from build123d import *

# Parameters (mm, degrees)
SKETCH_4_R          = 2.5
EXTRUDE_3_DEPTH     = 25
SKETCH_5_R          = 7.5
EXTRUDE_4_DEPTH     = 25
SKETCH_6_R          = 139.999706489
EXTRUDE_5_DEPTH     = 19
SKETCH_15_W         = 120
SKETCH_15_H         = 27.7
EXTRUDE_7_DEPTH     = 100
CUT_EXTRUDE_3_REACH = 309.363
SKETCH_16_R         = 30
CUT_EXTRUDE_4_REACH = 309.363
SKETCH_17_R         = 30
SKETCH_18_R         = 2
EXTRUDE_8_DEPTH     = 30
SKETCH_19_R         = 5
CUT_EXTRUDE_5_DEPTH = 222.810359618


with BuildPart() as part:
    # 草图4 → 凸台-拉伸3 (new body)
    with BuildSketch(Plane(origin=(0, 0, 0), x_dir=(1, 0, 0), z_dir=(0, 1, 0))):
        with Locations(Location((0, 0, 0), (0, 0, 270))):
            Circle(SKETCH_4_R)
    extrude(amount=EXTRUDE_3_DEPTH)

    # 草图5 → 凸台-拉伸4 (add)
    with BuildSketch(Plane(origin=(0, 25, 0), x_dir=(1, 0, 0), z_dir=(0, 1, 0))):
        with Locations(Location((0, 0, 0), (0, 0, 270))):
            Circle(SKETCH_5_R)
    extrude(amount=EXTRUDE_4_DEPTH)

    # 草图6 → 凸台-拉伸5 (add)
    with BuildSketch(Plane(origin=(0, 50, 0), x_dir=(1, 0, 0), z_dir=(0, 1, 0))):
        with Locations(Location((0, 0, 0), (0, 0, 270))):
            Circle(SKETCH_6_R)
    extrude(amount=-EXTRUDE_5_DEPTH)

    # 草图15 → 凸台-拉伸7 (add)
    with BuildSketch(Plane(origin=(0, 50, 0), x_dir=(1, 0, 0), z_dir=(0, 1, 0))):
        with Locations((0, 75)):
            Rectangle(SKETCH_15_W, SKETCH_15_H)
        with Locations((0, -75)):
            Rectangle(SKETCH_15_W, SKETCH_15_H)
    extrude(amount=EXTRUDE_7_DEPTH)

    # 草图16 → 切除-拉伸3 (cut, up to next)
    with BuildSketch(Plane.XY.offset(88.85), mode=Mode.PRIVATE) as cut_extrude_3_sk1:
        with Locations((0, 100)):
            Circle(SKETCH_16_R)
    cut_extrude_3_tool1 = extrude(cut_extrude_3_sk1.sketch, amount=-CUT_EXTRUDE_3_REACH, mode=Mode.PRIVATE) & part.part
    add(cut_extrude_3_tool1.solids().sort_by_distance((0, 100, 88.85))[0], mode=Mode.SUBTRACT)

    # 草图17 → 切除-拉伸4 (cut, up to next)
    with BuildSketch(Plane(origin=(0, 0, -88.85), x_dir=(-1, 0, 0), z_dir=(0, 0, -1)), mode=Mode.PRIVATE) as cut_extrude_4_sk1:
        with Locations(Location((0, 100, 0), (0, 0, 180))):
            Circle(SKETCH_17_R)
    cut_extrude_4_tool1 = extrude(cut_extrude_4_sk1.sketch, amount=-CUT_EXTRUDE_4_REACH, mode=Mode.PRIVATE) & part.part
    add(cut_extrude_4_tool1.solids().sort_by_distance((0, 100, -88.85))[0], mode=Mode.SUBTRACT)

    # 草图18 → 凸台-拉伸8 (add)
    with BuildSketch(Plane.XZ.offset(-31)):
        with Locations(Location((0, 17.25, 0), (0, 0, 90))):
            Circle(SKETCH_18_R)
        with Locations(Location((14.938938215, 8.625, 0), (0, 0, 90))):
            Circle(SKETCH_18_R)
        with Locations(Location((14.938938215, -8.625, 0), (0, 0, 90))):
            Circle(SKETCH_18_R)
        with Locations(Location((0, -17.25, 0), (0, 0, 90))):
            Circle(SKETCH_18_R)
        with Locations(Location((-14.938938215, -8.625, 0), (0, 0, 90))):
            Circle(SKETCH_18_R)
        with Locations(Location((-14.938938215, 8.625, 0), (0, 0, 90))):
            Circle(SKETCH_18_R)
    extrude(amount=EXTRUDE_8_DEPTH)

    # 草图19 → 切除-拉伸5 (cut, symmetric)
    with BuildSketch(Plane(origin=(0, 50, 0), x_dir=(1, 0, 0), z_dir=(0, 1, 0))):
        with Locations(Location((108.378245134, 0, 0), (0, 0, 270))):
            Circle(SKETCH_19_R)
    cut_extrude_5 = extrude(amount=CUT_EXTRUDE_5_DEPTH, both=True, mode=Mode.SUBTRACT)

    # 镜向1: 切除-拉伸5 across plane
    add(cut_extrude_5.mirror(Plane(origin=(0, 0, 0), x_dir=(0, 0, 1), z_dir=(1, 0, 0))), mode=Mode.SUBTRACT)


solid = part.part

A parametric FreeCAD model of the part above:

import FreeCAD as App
import Part
import Sketcher

V = App.Vector


def add_polygon(sketch, points):
    """Adds a closed chain of lines whose ends are joined by coincident constraints."""
    first, n = sketch.GeometryCount, len(points)
    for a, b in zip(points, points[1:] + points[:1]):
        sketch.addGeometry(Part.LineSegment(App.Vector(*a, 0), App.Vector(*b, 0)), False)
    for i in range(n):
        sketch.addConstraint(Sketcher.Constraint("Coincident", first + i, 2, first + (i + 1) % n, 1))

doc = App.newDocument("Part")
body = doc.addObject("PartDesign::Body", "Body")

sketch1 = body.newObject("Sketcher::SketchObject", "Sketch")
sketch1.AttachmentSupport = (doc.getObject("XZ_Plane"), [""])
sketch1.MapMode = "FlatFace"
sketch1.addGeometry(Part.Circle(V(0, 0, 0), V(0, 0, 1), 2.5), False)
sketch1.addConstraint([
    Sketcher.Constraint("Coincident", 0, 3, -1, 1),
    Sketcher.Constraint("Diameter", 0, 5.0),
])
pad1 = body.newObject("PartDesign::Pad", "Pad")
pad1.Profile = sketch1
pad1.Length = 25
pad1.Reversed = True

sketch2 = body.newObject("Sketcher::SketchObject", "Sketch001")
sketch2.AttachmentSupport = (doc.getObject("XZ_Plane"), [""])
sketch2.MapMode = "FlatFace"
sketch2.AttachmentOffset = App.Placement(V(0, 0, -25), App.Rotation())
sketch2.addGeometry(Part.Circle(V(0, 0, 0), V(0, 0, 1), 8), False)
sketch2.addConstraint([
    Sketcher.Constraint("Coincident", 0, 3, -1, 1),
    Sketcher.Constraint("Diameter", 0, 15.0),
])
pad2 = body.newObject("PartDesign::Pad", "Pad001")
pad2.Profile = sketch2
pad2.Length = 25
pad2.Reversed = True

sketch3 = body.newObject("Sketcher::SketchObject", "Sketch002")
sketch3.AttachmentSupport = (doc.getObject("XZ_Plane"), [""])
sketch3.MapMode = "FlatFace"
sketch3.AttachmentOffset = App.Placement(V(0, 0, -50), App.Rotation())
sketch3.addGeometry(Part.Circle(V(0, 0, 0), V(0, 0, 1), 139.999706), False)
sketch3.addConstraint([
    Sketcher.Constraint("Coincident", 0, 3, -1, 1),
    Sketcher.Constraint("Diameter", 0, 279.999413),
])
pad3 = body.newObject("PartDesign::Pad", "Pad002")
pad3.Profile = sketch3
pad3.Length = 19

sketch4 = body.newObject("Sketcher::SketchObject", "Sketch003")
sketch4.AttachmentSupport = (doc.getObject("XZ_Plane"), [""])
sketch4.MapMode = "FlatFace"
sketch4.AttachmentOffset = App.Placement(V(0, 0, -50), App.Rotation())
add_polygon(sketch4, [(-60, -89), (-60, -61), (60, -61), (60, -89)])
add_polygon(sketch4, [(-60, 61), (-60, 89), (60, 89), (60, 61)])
sketch4.addConstraint([
    Sketcher.Constraint("Vertical", 0),
    Sketcher.Constraint("Horizontal", 1),
    Sketcher.Constraint("Vertical", 2),
    Sketcher.Constraint("Horizontal", 3),
    Sketcher.Constraint("Vertical", 4),
    Sketcher.Constraint("Horizontal", 5),
    Sketcher.Constraint("Vertical", 6),
    Sketcher.Constraint("Horizontal", 7),
    Sketcher.Constraint("Symmetric", 2, 2, 4, 2, -1, 1),
    Sketcher.Constraint("Symmetric", 0, 2, 6, 2, -1, 1),
    Sketcher.Constraint("Vertical", 3, 2, 4, 2),
    Sketcher.Constraint("DistanceX", 1, 1, 1, 2, 120.0),
    Sketcher.Constraint("DistanceY", 0, 1, 0, 2, 27.7),
    Sketcher.Constraint("DistanceY", 0, 2, 4, 2, 150.0),
])
pad4 = body.newObject("PartDesign::Pad", "Pad003")
pad4.Profile = sketch4
pad4.Length = 100
pad4.Reversed = True

sketch5 = body.newObject("Sketcher::SketchObject", "Sketch004")
sketch5.AttachmentSupport = (doc.getObject("XY_Plane"), [""])
sketch5.MapMode = "FlatFace"
sketch5.AttachmentOffset = App.Placement(V(0, 0, 88.85), App.Rotation())
sketch5.addGeometry(Part.Circle(V(0, 100, 0), V(0, 0, 1), 30), False)
sketch5.addConstraint([
    Sketcher.Constraint("PointOnObject", 0, 3, -2),
    Sketcher.Constraint("Diameter", 0, 60.0),
    Sketcher.Constraint("DistanceY", -1, 1, 0, 3, 100.0),
])
pocket1 = body.newObject("PartDesign::Pocket", "Pocket")
pocket1.Profile = sketch5
pocket1.Type = "UpToFirst"

sketch6 = body.newObject("Sketcher::SketchObject", "Sketch005")
sketch6.AttachmentSupport = (doc.getObject("XY_Plane"), [""])
sketch6.MapMode = "FlatFace"
sketch6.AttachmentOffset = App.Placement(V(0, 0, -88.85), App.Rotation())
sketch6.addGeometry(Part.Circle(V(0, 100, 0), V(0, 0, 1), 30), False)
sketch6.addConstraint([
    Sketcher.Constraint("PointOnObject", 0, 3, -2),
    Sketcher.Constraint("Diameter", 0, 60.0),
    Sketcher.Constraint("DistanceY", -1, 1, 0, 3, 100.0),
])
pocket2 = body.newObject("PartDesign::Pocket", "Pocket001")
pocket2.Profile = sketch6
pocket2.Type = "UpToFirst"
pocket2.Reversed = True

sketch7 = body.newObject("Sketcher::SketchObject", "Sketch006")
sketch7.AttachmentSupport = (doc.getObject("XZ_Plane"), [""])
sketch7.MapMode = "FlatFace"
sketch7.AttachmentOffset = App.Placement(V(0, 0, -31), App.Rotation())
sketch7.addGeometry([
    Part.Circle(V(0, 17.2, 0), V(0, 0, 1), 2),
    Part.Circle(V(14.9, 8.6, 0), V(0, 0, 1), 2),
    Part.Circle(V(14.9, -8.6, 0), V(0, 0, 1), 2),
    Part.Circle(V(0, -17.2, 0), V(0, 0, 1), 2),
    Part.Circle(V(-14.9, -8.6, 0), V(0, 0, 1), 2),
    Part.Circle(V(-14.9, 8.6, 0), V(0, 0, 1), 2),
], False)
sketch7.addConstraint([
    Sketcher.Constraint("Equal", 0, 1),
    Sketcher.Constraint("Equal", 1, 2),
    Sketcher.Constraint("Equal", 2, 3),
    Sketcher.Constraint("Equal", 3, 4),
    Sketcher.Constraint("Equal", 4, 5),
    Sketcher.Constraint("Symmetric", 0, 3, 3, 3, -1, 1),
    Sketcher.Constraint("Symmetric", 1, 3, 4, 3, -1, 1),
    Sketcher.Constraint("Symmetric", 2, 3, 5, 3, -1, 1),
    Sketcher.Constraint("Symmetric", 2, 3, 4, 3, -2),
    Sketcher.Constraint("PointOnObject", 0, 3, -2),
    Sketcher.Constraint("Diameter", 0, 4.0),
    Sketcher.Constraint("DistanceY", 3, 3, 0, 3, 34.5),
    Sketcher.Constraint("DistanceY", 2, 3, 1, 3, 17.25),
    Sketcher.Constraint("DistanceX", -1, 1, 1, 3, 14.938938),
])
pad5 = body.newObject("PartDesign::Pad", "Pad004")
pad5.Profile = sketch7
pad5.Length = 30

sketch8 = body.newObject("Sketcher::SketchObject", "Sketch007")
sketch8.AttachmentSupport = (doc.getObject("XZ_Plane"), [""])
sketch8.MapMode = "FlatFace"
sketch8.AttachmentOffset = App.Placement(V(0, 0, -50), App.Rotation())
sketch8.addGeometry(Part.Circle(V(108, 0, 0), V(0, 0, 1), 5), False)
sketch8.addConstraint([
    Sketcher.Constraint("PointOnObject", 0, 3, -1),
    Sketcher.Constraint("Diameter", 0, 10.0),
    Sketcher.Constraint("DistanceX", -1, 1, 0, 3, 108.378245),
])
pocket3 = body.newObject("PartDesign::Pocket", "Pocket002")
pocket3.Profile = sketch8
pocket3.Length = 445.620719
pocket3.Midplane = True
doc.recompute()

mirrored = body.newObject("PartDesign::Mirrored", "Mirrored")
mirrored.Originals = [pocket3]
mirrored.MirrorPlane = (doc.getObject("YZ_Plane"), [""])
body.Tip = mirrored

doc.recompute()
